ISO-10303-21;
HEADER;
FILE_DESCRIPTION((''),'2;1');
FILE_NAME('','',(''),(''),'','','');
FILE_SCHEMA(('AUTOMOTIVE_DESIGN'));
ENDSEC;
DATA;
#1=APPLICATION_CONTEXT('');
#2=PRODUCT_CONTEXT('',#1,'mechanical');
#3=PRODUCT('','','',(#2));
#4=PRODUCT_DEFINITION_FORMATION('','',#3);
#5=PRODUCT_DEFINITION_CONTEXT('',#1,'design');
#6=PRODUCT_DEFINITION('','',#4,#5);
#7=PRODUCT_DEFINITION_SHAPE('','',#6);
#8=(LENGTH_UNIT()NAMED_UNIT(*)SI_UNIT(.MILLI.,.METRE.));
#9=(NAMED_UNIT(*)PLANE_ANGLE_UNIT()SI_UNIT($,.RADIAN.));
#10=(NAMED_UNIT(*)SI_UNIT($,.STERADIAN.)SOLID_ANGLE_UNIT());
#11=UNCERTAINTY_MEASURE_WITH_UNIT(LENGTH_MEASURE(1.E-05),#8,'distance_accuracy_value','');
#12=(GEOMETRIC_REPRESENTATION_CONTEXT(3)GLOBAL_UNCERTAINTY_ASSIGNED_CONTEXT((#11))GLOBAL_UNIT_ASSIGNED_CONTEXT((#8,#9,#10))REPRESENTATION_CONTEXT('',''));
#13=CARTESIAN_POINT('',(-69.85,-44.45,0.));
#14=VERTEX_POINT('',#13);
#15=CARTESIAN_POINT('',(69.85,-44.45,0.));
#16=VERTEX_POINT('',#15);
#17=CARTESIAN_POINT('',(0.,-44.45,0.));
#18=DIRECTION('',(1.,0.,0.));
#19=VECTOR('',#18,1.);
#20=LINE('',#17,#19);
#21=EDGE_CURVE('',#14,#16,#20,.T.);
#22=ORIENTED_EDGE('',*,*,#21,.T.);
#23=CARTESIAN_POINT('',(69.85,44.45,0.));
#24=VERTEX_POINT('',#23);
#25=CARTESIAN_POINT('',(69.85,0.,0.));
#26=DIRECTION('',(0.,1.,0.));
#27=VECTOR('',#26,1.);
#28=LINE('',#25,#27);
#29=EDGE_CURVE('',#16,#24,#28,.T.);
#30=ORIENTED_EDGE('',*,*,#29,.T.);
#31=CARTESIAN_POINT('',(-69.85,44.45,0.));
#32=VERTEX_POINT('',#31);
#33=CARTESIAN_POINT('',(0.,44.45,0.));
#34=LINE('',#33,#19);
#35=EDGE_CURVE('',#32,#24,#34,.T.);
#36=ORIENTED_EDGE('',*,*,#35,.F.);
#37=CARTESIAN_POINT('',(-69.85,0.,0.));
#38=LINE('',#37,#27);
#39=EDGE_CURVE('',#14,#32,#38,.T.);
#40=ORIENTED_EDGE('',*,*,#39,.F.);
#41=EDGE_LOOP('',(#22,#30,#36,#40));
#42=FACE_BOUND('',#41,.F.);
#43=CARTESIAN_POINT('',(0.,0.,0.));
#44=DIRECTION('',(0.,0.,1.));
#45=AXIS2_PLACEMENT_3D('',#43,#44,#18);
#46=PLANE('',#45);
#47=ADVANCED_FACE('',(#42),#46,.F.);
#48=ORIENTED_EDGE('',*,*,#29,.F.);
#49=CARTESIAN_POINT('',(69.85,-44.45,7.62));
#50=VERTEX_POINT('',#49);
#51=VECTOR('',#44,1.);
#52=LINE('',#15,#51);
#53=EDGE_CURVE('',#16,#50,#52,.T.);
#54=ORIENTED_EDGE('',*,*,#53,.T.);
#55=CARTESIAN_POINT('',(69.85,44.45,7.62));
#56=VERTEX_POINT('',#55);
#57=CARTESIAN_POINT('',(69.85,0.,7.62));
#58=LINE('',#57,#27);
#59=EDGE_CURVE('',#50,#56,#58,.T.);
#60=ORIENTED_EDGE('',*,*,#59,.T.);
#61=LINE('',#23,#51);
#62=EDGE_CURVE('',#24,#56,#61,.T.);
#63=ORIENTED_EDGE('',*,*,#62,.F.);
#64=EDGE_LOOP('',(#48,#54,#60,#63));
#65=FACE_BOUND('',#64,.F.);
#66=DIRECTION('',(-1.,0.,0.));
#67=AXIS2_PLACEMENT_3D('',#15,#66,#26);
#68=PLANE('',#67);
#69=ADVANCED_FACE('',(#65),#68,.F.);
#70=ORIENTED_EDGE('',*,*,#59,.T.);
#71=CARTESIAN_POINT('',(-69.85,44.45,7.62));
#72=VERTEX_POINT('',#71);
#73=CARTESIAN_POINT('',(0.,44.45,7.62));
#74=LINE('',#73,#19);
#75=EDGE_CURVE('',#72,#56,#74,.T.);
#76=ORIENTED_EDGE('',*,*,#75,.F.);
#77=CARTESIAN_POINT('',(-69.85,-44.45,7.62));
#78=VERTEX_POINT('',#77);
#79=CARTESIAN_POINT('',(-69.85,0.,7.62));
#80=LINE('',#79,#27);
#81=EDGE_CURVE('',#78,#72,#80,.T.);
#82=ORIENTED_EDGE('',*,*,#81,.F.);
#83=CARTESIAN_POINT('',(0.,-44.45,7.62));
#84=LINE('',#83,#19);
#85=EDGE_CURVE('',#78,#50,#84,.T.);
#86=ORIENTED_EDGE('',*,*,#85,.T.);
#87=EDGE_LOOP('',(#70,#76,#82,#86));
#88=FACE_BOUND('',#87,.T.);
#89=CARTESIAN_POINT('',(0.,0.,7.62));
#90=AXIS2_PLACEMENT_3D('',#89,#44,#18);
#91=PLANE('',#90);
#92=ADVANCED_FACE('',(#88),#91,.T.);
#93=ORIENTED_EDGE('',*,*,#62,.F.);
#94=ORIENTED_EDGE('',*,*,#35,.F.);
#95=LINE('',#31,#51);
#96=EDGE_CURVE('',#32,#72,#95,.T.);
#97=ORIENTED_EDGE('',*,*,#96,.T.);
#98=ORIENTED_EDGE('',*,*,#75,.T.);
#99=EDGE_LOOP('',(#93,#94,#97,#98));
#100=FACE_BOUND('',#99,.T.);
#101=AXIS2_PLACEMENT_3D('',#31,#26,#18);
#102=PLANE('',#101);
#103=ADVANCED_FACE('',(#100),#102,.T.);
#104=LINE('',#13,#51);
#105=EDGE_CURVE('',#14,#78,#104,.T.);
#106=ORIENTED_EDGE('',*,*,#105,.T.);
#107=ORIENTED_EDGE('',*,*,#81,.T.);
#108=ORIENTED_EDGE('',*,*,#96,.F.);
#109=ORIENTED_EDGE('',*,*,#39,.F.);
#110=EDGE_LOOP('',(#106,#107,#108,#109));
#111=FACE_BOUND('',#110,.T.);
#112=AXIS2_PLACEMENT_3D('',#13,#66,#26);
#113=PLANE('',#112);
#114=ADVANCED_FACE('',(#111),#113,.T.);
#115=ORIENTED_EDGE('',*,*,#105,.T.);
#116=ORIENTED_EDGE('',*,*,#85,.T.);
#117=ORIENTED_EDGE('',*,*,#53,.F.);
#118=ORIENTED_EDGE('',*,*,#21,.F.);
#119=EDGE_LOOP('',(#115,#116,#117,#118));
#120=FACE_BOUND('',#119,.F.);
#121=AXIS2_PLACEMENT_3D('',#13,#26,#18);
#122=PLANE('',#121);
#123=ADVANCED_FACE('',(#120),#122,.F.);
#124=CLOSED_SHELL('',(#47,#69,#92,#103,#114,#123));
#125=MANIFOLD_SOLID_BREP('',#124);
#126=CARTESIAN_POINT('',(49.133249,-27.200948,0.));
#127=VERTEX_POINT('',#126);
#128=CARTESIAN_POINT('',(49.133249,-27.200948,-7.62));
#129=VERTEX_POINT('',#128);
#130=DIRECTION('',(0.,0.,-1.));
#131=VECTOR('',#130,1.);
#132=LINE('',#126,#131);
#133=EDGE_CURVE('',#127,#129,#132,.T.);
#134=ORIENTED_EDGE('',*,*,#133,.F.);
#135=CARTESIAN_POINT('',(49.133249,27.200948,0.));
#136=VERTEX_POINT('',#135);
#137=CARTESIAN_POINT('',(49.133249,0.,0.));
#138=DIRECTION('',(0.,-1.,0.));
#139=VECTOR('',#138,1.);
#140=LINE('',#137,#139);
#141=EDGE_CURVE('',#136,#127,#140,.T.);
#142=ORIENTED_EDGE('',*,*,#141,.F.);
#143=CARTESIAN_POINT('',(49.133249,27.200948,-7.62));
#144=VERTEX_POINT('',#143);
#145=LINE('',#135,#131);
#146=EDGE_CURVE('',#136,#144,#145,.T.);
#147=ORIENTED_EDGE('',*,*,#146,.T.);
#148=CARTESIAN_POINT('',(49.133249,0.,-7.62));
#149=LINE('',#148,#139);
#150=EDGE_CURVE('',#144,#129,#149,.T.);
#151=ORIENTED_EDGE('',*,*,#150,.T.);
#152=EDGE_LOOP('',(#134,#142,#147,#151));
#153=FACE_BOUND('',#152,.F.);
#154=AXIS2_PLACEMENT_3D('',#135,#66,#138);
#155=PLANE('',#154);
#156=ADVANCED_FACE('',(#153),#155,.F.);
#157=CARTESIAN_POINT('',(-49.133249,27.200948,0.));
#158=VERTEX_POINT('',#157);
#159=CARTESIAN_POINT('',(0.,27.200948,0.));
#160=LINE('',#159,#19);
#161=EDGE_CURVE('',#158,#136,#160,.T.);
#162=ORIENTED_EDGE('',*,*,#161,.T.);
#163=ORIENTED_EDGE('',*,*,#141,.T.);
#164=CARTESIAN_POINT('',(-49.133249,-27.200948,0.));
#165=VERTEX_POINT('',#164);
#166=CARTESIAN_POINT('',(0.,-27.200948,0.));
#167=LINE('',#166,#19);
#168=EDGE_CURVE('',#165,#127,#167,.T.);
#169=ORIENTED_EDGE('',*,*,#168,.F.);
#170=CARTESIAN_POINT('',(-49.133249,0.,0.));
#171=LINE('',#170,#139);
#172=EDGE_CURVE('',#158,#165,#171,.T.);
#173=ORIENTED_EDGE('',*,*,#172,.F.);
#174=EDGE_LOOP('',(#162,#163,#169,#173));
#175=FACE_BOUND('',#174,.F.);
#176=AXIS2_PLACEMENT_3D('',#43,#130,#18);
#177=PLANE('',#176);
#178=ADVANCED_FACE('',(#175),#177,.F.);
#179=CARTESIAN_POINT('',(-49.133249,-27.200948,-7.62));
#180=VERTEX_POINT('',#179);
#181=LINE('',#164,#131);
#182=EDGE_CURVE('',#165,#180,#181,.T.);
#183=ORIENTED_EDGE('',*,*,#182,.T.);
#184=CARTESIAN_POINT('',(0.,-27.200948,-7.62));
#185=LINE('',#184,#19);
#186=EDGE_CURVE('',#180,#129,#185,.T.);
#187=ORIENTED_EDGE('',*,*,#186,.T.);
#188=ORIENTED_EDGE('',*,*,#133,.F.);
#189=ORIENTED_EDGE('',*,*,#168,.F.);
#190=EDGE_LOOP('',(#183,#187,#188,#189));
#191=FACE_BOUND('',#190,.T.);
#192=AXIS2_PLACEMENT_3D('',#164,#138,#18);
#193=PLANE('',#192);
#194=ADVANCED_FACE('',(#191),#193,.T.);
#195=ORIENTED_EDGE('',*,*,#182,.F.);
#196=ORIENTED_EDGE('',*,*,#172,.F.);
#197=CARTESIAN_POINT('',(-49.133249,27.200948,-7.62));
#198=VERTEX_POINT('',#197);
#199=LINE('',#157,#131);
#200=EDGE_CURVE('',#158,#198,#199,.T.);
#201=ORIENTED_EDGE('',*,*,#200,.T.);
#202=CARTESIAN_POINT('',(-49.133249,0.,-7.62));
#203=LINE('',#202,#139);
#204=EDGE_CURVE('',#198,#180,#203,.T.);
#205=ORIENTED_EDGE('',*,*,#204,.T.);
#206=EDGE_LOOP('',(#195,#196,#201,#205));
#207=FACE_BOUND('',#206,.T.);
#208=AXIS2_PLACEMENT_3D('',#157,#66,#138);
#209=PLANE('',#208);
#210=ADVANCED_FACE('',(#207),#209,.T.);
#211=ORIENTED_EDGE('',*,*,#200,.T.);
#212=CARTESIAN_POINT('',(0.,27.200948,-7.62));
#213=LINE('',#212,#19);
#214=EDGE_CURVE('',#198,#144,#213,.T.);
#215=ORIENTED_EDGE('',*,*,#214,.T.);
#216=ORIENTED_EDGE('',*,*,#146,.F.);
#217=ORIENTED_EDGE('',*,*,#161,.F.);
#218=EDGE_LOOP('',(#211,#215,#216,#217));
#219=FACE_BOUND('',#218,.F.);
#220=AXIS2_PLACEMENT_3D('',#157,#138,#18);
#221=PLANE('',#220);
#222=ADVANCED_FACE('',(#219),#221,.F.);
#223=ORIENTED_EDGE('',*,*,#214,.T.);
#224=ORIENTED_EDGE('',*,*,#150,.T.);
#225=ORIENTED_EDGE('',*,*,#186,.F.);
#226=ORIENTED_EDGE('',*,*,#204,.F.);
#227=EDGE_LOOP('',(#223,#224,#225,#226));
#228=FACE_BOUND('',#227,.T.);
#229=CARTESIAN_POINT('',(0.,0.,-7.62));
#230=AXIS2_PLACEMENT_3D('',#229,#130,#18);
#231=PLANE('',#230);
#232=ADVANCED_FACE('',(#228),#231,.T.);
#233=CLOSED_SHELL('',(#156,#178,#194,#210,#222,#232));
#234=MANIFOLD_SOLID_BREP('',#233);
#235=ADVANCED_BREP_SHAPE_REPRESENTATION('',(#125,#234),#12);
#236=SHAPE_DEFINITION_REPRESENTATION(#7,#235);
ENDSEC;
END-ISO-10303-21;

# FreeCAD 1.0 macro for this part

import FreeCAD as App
import Part
import Sketcher
Q = App.Units.Quantity


def add_polygon(sketch, points):
    """Adds a closed chain of lines whose ends are joined by coincident constraints."""
    first, n = sketch.GeometryCount, len(points)
    for a, b in zip(points, points[1:] + points[:1]):
        sketch.addGeometry(Part.LineSegment(App.Vector(*a, 0), App.Vector(*b, 0)), False)
    for i in range(n):
        sketch.addConstraint(Sketcher.Constraint("Coincident", first + i, 2, first + (i + 1) % n, 1))

doc = App.newDocument("Part")
body = doc.addObject("PartDesign::Body", "Body")

sketch1 = body.newObject("Sketcher::SketchObject", "Sketch")
sketch1.AttachmentSupport = (doc.getObject("XY_Plane"), [""])
sketch1.MapMode = "FlatFace"
add_polygon(sketch1, [(-70, 44), (-70, -44), (70, -44), (70, 44)])
sketch1.addConstraint(Sketcher.Constraint("Vertical", 0))
sketch1.addConstraint(Sketcher.Constraint("Horizontal", 1))
sketch1.addConstraint(Sketcher.Constraint("Vertical", 2))
sketch1.addConstraint(Sketcher.Constraint("Horizontal", 3))
sketch1.addConstraint(Sketcher.Constraint("Symmetric", 0, 2, 2, 2, -1, 1))
sketch1.addConstraint(Sketcher.Constraint("DistanceX", 1, 1, 1, 2, Q("5.5 in")))
sketch1.addConstraint(Sketcher.Constraint("DistanceY", 0, 2, 0, 1, Q("3.5 in")))
pad1 = body.newObject("PartDesign::Pad", "Pad")
pad1.Profile = sketch1
pad1.Length = Q("0.3 in")
body2 = doc.addObject("PartDesign::Body", "Body001")

sketch2 = body2.newObject("Sketcher::SketchObject", "Sketch001")
sketch2.AttachmentSupport = (doc.getObject("XY_Plane001"), [""])
sketch2.MapMode = "FlatFace"
add_polygon(sketch2, [(-49, -27), (-49, 27), (49, 27), (49, -27)])
sketch2.addConstraint(Sketcher.Constraint("Vertical", 0))
sketch2.addConstraint(Sketcher.Constraint("Horizontal", 1))
sketch2.addConstraint(Sketcher.Constraint("Vertical", 2))
sketch2.addConstraint(Sketcher.Constraint("Horizontal", 3))
sketch2.addConstraint(Sketcher.Constraint("Symmetric", 0, 2, 2, 2, -1, 1))
sketch2.addConstraint(Sketcher.Constraint("DistanceX", 1, 1, 1, 2, Q("98.266498 mm")))
sketch2.addConstraint(Sketcher.Constraint("DistanceY", 0, 1, 0, 2, Q("54.401896 mm")))
pad2 = body2.newObject("PartDesign::Pad", "Pad001")
pad2.Profile = sketch2
pad2.Length = Q("0.3 in")
pad2.Reversed = True

doc.recompute()
